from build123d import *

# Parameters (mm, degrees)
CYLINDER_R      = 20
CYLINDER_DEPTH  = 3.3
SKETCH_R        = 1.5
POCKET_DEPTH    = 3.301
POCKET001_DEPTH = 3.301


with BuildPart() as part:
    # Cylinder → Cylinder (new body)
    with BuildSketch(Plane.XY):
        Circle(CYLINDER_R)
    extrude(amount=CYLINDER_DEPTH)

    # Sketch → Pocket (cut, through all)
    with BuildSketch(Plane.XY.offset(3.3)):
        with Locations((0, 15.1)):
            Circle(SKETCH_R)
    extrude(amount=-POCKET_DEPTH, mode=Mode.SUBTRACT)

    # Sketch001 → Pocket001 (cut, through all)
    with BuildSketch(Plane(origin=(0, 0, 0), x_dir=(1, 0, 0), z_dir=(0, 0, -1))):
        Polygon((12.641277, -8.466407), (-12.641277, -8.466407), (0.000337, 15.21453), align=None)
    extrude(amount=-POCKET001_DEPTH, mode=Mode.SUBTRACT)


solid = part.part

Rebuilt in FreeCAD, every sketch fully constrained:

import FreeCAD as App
import Part
import Sketcher
from FreeCAD import Vector
Q = App.Units.Quantity

doc = App.newDocument("Part")
body = doc.addObject("PartDesign::Body", "Body")

# Sketch on XY plane
sketch1 = body.newObject("Sketcher::SketchObject", "Sketch")
sketch1.AttachmentSupport = (doc.getObject("XY_Plane"), [""])
sketch1.MapMode = "FlatFace"
sketch1.addGeometry(Part.Circle(Vector(0, 0, 0), Vector(0, 0, 1), 20), False)
sketch1.addConstraint([
    Sketcher.Constraint("Coincident", 0, 3, -1, 1),
    Sketcher.Constraint("Diameter", 0, Q("40 mm")),
])
pad1 = body.newObject("PartDesign::Pad", "Pad")
pad1.Profile = sketch1
pad1.Length = 3.3

# Sketch on XY plane
sketch2 = body.newObject("Sketcher::SketchObject", "Sketch001")
sketch2.AttachmentSupport = (doc.getObject("XY_Plane"), [""])
sketch2.MapMode = "FlatFace"
sketch2.AttachmentOffset = App.Placement(Vector(0, 0, 3.3), App.Rotation())
sketch2.addGeometry(Part.Circle(Vector(0, 15.1, 0), Vector(0, 0, 1), 1.5), False)
sketch2.addConstraint([
    Sketcher.Constraint("PointOnObject", 0, 3, -2),
    Sketcher.Constraint("Diameter", 0, Q("3 mm")),
    Sketcher.Constraint("DistanceY", -1, 1, 0, 3, Q("15.1 mm")),
])
pocket1 = body.newObject("PartDesign::Pocket", "Pocket")
pocket1.Profile = sketch2
pocket1.Type = "ThroughAll"

# Sketch on XY plane
sketch3 = body.newObject("Sketcher::SketchObject", "Sketch002")
sketch3.AttachmentSupport = (doc.getObject("XY_Plane"), [""])
sketch3.MapMode = "FlatFace"
sketch3.addGeometry([
    Part.LineSegment(Vector(-13, 8, 0), Vector(13, 8, 0)),
    Part.LineSegment(Vector(13, 8, 0), Vector(0, -15, 0)),
    Part.LineSegment(Vector(0, -15, 0), Vector(-13, 8, 0)),
], False)
sketch3.addConstraint([
    Sketcher.Constraint("Coincident", 0, 2, 1, 1),
    Sketcher.Constraint("Coincident", 1, 2, 2, 1),
    Sketcher.Constraint("Coincident", 2, 2, 0, 1),
    Sketcher.Constraint("Horizontal", 0),
    Sketcher.Constraint("Distance", 2, Q("26.843941 mm")),
    Sketcher.Constraint("DistanceX", 0, 1, 0, 2, Q("25.282554 mm")),
    Sketcher.Constraint("DistanceY", 1, 2, -1, 1, Q("15.21453 mm")),
    Sketcher.Constraint("DistanceX", 1, 2, 0, 2, Q("12.64094 mm")),
    Sketcher.Constraint("DistanceX", -1, 1, 0, 2, Q("12.641277 mm")),
])
pocket2 = body.newObject("PartDesign::Pocket", "Pocket001")
pocket2.Profile = sketch3
pocket2.Type = "ThroughAll"
pocket2.Reversed = True

doc.recompute()
